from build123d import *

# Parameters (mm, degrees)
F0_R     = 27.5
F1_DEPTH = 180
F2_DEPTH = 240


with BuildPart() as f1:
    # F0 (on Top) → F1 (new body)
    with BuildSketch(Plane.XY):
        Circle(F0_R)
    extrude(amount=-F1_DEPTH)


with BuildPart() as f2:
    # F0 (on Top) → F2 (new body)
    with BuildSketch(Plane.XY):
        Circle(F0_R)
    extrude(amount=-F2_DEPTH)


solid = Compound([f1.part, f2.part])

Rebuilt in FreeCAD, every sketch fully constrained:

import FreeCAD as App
import Part
import Sketcher

V = App.Vector

doc = App.newDocument("Part")
body = doc.addObject("PartDesign::Body", "Body")

# Sketch on XY plane
sketch1 = body.newObject("Sketcher::SketchObject", "Sketch")
sketch1.AttachmentSupport = (doc.getObject("XY_Plane"), [""])
sketch1.MapMode = "FlatFace"
sketch1.addGeometry(Part.Circle(V(0, 0, 0), V(0, 0, 1), 28), False)
sketch1.addConstraint([
    Sketcher.Constraint("Coincident", 0, 3, -1, 1),
    Sketcher.Constraint("Diameter", 0, 55.0),
])
pad1 = body.newObject("PartDesign::Pad", "Pad")
pad1.Profile = sketch1
pad1.Length = 180
pad1.Reversed = True
body2 = doc.addObject("PartDesign::Body", "Body001")

# Sketch on XY plane
sketch2 = body2.newObject("Sketcher::SketchObject", "Sketch001")
sketch2.AttachmentSupport = (doc.getObject("XY_Plane001"), [""])
sketch2.MapMode = "FlatFace"
sketch2.addGeometry(Part.Circle(V(0, 0, 0), V(0, 0, 1), 28), False)
sketch2.addConstraint([
    Sketcher.Constraint("Coincident", 0, 3, -1, 1),
    Sketcher.Constraint("Diameter", 0, 55.0),
])
pad2 = body2.newObject("PartDesign::Pad", "Pad001")
pad2.Profile = sketch2
pad2.Length = 240
pad2.Reversed = True

doc.recompute()
